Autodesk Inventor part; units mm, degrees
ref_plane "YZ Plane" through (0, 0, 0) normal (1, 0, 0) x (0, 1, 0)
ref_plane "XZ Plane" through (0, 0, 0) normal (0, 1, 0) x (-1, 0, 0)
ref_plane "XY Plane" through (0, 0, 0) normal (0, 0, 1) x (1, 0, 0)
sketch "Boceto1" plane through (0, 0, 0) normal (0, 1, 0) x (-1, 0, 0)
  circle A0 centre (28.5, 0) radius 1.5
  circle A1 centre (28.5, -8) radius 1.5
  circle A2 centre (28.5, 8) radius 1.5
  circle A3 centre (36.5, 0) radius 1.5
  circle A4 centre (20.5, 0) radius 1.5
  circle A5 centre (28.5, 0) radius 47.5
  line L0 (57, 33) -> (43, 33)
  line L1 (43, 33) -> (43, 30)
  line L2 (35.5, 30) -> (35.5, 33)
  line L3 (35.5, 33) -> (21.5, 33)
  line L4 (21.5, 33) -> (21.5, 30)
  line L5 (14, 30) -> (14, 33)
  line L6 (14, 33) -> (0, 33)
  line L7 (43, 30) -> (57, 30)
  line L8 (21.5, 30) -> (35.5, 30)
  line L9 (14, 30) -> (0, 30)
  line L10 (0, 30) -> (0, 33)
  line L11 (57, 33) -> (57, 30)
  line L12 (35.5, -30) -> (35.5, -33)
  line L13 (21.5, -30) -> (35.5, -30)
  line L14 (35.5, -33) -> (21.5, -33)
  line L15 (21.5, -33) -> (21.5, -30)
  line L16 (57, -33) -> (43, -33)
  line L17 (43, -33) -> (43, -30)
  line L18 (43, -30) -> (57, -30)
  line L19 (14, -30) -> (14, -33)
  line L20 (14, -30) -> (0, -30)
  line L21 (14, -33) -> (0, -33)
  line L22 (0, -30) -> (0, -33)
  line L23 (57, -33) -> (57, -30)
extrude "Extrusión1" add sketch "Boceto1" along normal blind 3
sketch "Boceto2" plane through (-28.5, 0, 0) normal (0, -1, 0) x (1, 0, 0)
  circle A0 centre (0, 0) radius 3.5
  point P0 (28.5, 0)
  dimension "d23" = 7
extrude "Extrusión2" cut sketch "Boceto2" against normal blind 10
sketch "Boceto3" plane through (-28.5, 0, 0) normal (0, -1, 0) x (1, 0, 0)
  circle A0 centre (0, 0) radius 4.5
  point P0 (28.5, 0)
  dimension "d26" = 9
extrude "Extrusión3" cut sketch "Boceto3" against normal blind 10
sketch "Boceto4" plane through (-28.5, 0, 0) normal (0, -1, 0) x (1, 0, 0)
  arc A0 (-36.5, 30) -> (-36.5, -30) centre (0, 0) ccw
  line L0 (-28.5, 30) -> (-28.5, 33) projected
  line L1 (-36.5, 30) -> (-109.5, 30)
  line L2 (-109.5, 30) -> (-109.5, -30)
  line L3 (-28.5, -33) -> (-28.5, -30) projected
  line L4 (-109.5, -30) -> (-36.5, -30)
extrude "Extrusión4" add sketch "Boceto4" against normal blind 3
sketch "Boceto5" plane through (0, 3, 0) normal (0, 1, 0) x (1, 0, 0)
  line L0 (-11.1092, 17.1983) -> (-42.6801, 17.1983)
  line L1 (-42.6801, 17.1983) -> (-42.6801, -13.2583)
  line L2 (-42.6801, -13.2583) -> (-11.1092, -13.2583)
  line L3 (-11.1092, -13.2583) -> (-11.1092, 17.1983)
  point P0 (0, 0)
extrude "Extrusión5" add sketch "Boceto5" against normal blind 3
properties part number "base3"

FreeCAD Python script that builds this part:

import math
import FreeCAD as App
import Part
import Sketcher
from FreeCAD import Vector
Q = App.Units.Quantity


def add_polygon(sketch, points):
    """Adds a closed chain of lines whose ends are joined by coincident constraints."""
    first, n = sketch.GeometryCount, len(points)
    for a, b in zip(points, points[1:] + points[:1]):
        sketch.addGeometry(Part.LineSegment(App.Vector(*a, 0), App.Vector(*b, 0)), False)
    for i in range(n):
        sketch.addConstraint(Sketcher.Constraint("Coincident", first + i, 2, first + (i + 1) % n, 1))

doc = App.newDocument("Part")
body = doc.addObject("PartDesign::Body", "Body")

# Sketch on XZ plane
sketch1 = body.newObject("Sketcher::SketchObject", "Sketch")
sketch1.AttachmentSupport = (doc.getObject("XZ_Plane"), [""])
sketch1.MapMode = "FlatFace"
sketch1.addGeometry(Part.Circle(Vector(-28.5, 0, 0), Vector(0, 0, 1), 47.5), False)  # 0
add_polygon(sketch1, [(0, -30), (-14, -30), (-14, -33), (0, -33)])  # lines 1-4
add_polygon(sketch1, [(-21.5, -30), (-35.5, -30), (-35.5, -33), (-21.5, -33)])  # lines 5-8
add_polygon(sketch1, [(-57, -30), (-57, -33), (-43, -33), (-43, -30)])  # lines 9-12
sketch1.addGeometry(Part.Circle(Vector(-28.5, -8, 0), Vector(0, 0, 1), 1.5), False)  # 13
sketch1.addGeometry(Part.Circle(Vector(-20.5, 0, 0), Vector(0, 0, 1), 1.5), False)  # 14
add_polygon(sketch1, [(-14, 33), (-14, 30), (0, 30), (0, 33)])  # lines 15-18
sketch1.addGeometry(Part.Circle(Vector(-28.5, 0, 0), Vector(0, 0, 1), 1.5), False)  # 19
sketch1.addGeometry(Part.Circle(Vector(-36.5, 0, 0), Vector(0, 0, 1), 1.5), False)  # 20
sketch1.addGeometry(Part.Circle(Vector(-28.5, 8, 0), Vector(0, 0, 1), 1.5), False)  # 21
add_polygon(sketch1, [(-35.5, 33), (-35.5, 30), (-21.5, 30), (-21.5, 33)])  # lines 22-25
add_polygon(sketch1, [(-43, 33), (-57, 33), (-57, 30), (-43, 30)])  # lines 26-29
sketch1.addConstraint([
    Sketcher.Constraint("Horizontal", 1),
    Sketcher.Constraint("Vertical", 2),
    Sketcher.Constraint("Horizontal", 3),
    Sketcher.Constraint("Vertical", 4),
    Sketcher.Constraint("Horizontal", 5),
    Sketcher.Constraint("Vertical", 6),
    Sketcher.Constraint("Horizontal", 7),
    Sketcher.Constraint("Vertical", 8),
    Sketcher.Constraint("Vertical", 9),
    Sketcher.Constraint("Horizontal", 10),
    Sketcher.Constraint("Vertical", 11),
    Sketcher.Constraint("Horizontal", 12),
    Sketcher.Constraint("Vertical", 15),
    Sketcher.Constraint("Horizontal", 16),
    Sketcher.Constraint("Vertical", 17),
    Sketcher.Constraint("Horizontal", 18),
    Sketcher.Constraint("Vertical", 22),
    Sketcher.Constraint("Horizontal", 23),
    Sketcher.Constraint("Vertical", 24),
    Sketcher.Constraint("Horizontal", 25),
    Sketcher.Constraint("Horizontal", 26),
    Sketcher.Constraint("Vertical", 27),
    Sketcher.Constraint("Horizontal", 28),
    Sketcher.Constraint("Vertical", 29),
    Sketcher.Constraint("Coincident", 19, 3, 0, 3),
    Sketcher.Constraint("Equal", 13, 14),
    Sketcher.Constraint("Equal", 14, 19),
    Sketcher.Constraint("Equal", 19, 20),
    Sketcher.Constraint("Equal", 20, 21),
    Sketcher.Constraint("Symmetric", 4, 2, 16, 2, -1, 1),
    Sketcher.Constraint("Symmetric", 13, 3, 21, 3, -1),
    Sketcher.Constraint("Symmetric", 3, 2, 17, 2, -1),
    Sketcher.Constraint("Symmetric", 5, 2, 22, 2, -1),
    Sketcher.Constraint("Symmetric", 7, 2, 24, 2, -1),
    Sketcher.Constraint("Symmetric", 9, 2, 26, 2, -1),
    Sketcher.Constraint("Symmetric", 11, 2, 28, 2, -1),
    Sketcher.Constraint("PointOnObject", 0, 3, -1),
    Sketcher.Constraint("PointOnObject", 14, 3, -1),
    Sketcher.Constraint("PointOnObject", 20, 3, -1),
    Sketcher.Constraint("Horizontal", 4, 2, 5, 2),
    Sketcher.Constraint("Horizontal", 3, 2, 6, 2),
    Sketcher.Constraint("Horizontal", 7, 2, 9, 2),
    Sketcher.Constraint("Horizontal", 8, 2, 11, 2),
    Sketcher.Constraint("Vertical", 0, 3, 13, 3),
    Sketcher.Constraint("Vertical", 2, 2, 15, 2),
    Sketcher.Constraint("Equal", 3, 5),
    Sketcher.Constraint("Equal", 7, 10),
    Sketcher.Constraint("Diameter", 0, Q("95 mm")),
    Sketcher.Constraint("Diameter", 13, Q("3 mm")),
    Sketcher.Constraint("DistanceX", 1, 2, 1, 1, Q("14 mm")),
    Sketcher.Constraint("DistanceY", 2, 2, 2, 1, Q("3 mm")),
    Sketcher.Constraint("DistanceY", 13, 3, -1, 1, Q("8 mm")),
    Sketcher.Constraint("DistanceY", 1, 2, -1, 1, Q("30 mm")),
    Sketcher.Constraint("DistanceX", 9, 2, -1, 1, Q("57 mm")),
    Sketcher.Constraint("DistanceX", 0, 3, 14, 3, Q("8 mm")),
    Sketcher.Constraint("DistanceX", 20, 3, 0, 3, Q("8 mm")),
    Sketcher.Constraint("DistanceX", 5, 2, 13, 3, Q("7 mm")),
    Sketcher.Constraint("DistanceX", 0, 3, -1, 1, Q("28.5 mm")),
])
pad1 = body.newObject("PartDesign::Pad", "Pad")
pad1.Profile = sketch1
pad1.Length = 3
pad1.Reversed = True

# Sketch on XZ plane
sketch2 = body.newObject("Sketcher::SketchObject", "Sketch001")
sketch2.AttachmentSupport = (doc.getObject("XZ_Plane"), [""])
sketch2.MapMode = "FlatFace"
sketch2.addGeometry(Part.Circle(Vector(-28.5, 0, 0), Vector(0, 0, 1), 3.5), False)
sketch2.addConstraint([
    Sketcher.Constraint("PointOnObject", 0, 3, -1),
    Sketcher.Constraint("Diameter", 0, Q("7 mm")),
    Sketcher.Constraint("DistanceX", 0, 3, -1, 1, Q("28.5 mm")),
])
pocket1 = body.newObject("PartDesign::Pocket", "Pocket")
pocket1.Profile = sketch2
pocket1.Length = 10

# Sketch on XZ plane
sketch3 = body.newObject("Sketcher::SketchObject", "Sketch002")
sketch3.AttachmentSupport = (doc.getObject("XZ_Plane"), [""])
sketch3.MapMode = "FlatFace"
sketch3.addGeometry(Part.Circle(Vector(-28.5, 0, 0), Vector(0, 0, 1), 4.5), False)
sketch3.addConstraint([
    Sketcher.Constraint("PointOnObject", 0, 3, -1),
    Sketcher.Constraint("Diameter", 0, Q("9 mm")),
    Sketcher.Constraint("DistanceX", 0, 3, -1, 1, Q("28.5 mm")),
])
pocket2 = body.newObject("PartDesign::Pocket", "Pocket001")
pocket2.Profile = sketch3
pocket2.Length = 10

# Sketch on XZ plane
sketch4 = body.newObject("Sketcher::SketchObject", "Sketch003")
sketch4.AttachmentSupport = (doc.getObject("XZ_Plane"), [""])
sketch4.MapMode = "FlatFace"
sketch4.addGeometry([
    Part.ArcOfCircle(Part.Circle(Vector(-28, 0, 0), Vector(0, 0, 1), 47), math.radians(141), math.radians(219)),
    Part.LineSegment(Vector(-65, 30, 0), Vector(-138, 30, 0)),
    Part.LineSegment(Vector(-138, 30, 0), Vector(-138, -30, 0)),
    Part.LineSegment(Vector(-138, -30, 0), Vector(-65, -30, 0)),
], False)
sketch4.addConstraint([
    Sketcher.Constraint("Coincident", 0, 1, 1, 1),
    Sketcher.Constraint("Coincident", 1, 2, 2, 1),
    Sketcher.Constraint("Coincident", 2, 2, 3, 1),
    Sketcher.Constraint("Coincident", 3, 2, 0, 2),
    Sketcher.Constraint("Horizontal", 1),
    Sketcher.Constraint("Vertical", 2),
    Sketcher.Constraint("Horizontal", 3),
    Sketcher.Constraint("Symmetric", 0, 1, 3, 2, -1),
    Sketcher.Constraint("DistanceX", 1, 2, 1, 1, Q("73 mm")),
    Sketcher.Constraint("DistanceY", 2, 2, 2, 1, Q("60 mm")),
    Sketcher.Constraint("DistanceX", 0, 1, -1, 1, Q("65 mm")),
    Sketcher.Constraint("DistanceX", 0, 3, -1, 1, Q("28.5 mm")),
])
pad2 = body.newObject("PartDesign::Pad", "Pad001")
pad2.Profile = sketch4
pad2.Length = 3
pad2.Reversed = True

# Sketch on XZ plane
sketch5 = body.newObject("Sketcher::SketchObject", "Sketch004")
sketch5.AttachmentSupport = (doc.getObject("XZ_Plane"), [""])
sketch5.MapMode = "FlatFace"
sketch5.AttachmentOffset = App.Placement(Vector(0, 0, -3), App.Rotation())
add_polygon(sketch5, [(-11, 13), (-11, -17), (-43, -17), (-43, 13)])  # lines 0-3
sketch5.addConstraint([
    Sketcher.Constraint("Vertical", 0),
    Sketcher.Constraint("Horizontal", 1),
    Sketcher.Constraint("Vertical", 2),
    Sketcher.Constraint("Horizontal", 3),
    Sketcher.Constraint("DistanceX", 1, 2, 1, 1, Q("31.571 mm")),
    Sketcher.Constraint("DistanceX", 1, 2, -1, 1, Q("42.68 mm")),
    Sketcher.Constraint("DistanceY", 0, 2, 0, 1, Q("30.4566 mm")),
    Sketcher.Constraint("DistanceY", 0, 2, -1, 1, Q("17.1983 mm")),
])
pad3 = body.newObject("PartDesign::Pad", "Pad002")
pad3.Profile = sketch5
pad3.Length = 3

doc.recompute()
